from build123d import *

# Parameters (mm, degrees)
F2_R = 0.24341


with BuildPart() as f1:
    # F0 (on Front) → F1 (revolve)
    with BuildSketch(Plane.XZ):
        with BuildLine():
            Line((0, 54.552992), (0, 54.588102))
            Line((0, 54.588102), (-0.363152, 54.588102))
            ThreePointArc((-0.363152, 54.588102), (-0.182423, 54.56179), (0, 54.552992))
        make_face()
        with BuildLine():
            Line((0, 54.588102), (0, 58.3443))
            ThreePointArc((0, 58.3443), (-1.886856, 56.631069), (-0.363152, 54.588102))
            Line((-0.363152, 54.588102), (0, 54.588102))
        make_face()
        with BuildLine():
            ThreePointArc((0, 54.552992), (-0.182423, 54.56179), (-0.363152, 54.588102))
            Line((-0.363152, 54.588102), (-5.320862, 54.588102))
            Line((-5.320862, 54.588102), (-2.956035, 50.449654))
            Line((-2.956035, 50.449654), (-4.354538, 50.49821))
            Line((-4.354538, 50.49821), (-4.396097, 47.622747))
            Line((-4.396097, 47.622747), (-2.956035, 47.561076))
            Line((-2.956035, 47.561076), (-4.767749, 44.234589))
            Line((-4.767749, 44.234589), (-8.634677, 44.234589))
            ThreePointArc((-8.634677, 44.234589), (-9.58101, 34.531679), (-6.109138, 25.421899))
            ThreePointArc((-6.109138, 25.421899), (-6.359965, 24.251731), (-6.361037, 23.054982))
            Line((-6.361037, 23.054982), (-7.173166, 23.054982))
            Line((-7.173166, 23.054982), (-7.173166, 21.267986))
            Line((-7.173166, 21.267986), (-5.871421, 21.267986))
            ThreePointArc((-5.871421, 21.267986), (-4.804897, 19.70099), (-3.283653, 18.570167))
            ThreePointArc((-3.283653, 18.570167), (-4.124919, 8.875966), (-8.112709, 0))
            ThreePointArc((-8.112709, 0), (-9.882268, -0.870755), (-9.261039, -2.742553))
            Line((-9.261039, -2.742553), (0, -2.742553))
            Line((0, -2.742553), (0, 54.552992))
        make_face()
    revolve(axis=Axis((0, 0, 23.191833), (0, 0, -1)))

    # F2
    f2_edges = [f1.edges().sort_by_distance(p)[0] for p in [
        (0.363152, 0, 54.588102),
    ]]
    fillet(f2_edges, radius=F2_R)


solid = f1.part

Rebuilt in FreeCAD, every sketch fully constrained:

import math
import FreeCAD as App
import Part
import Sketcher

V = App.Vector
Q = App.Units.Quantity


def edges_at(feature, points):
    """Names of the edges that pass closest to the given points."""
    edges = feature.Shape.Edges
    near = lambda p: min(range(len(edges)), key=lambda i: edges[i].distToShape(Part.Vertex(*p))[0])
    return sorted({f"Edge{near(p) + 1}" for p in points})

doc = App.newDocument("Part")
body = doc.addObject("PartDesign::Body", "Body")

# Sketch on XZ plane
sketch1 = body.newObject("Sketcher::SketchObject", "Sketch")
sketch1.AttachmentSupport = (doc.getObject("XZ_Plane"), [""])
sketch1.MapMode = "FlatFace"
sketch1.addGeometry([
    Part.ArcOfCircle(Part.Circle(V(0, 56.448646, 0), V(0, 0, 1), 1.895654), math.radians(90), math.radians(258.955529)),  # 0
    Part.LineSegment(V(-0.363152, 54.588102, 0), V(-5.320862, 54.588102, 0)),  # 1
    Part.LineSegment(V(-5.320862, 54.588102, 0), V(-2.956035, 50.449654, 0)),  # 2
    Part.LineSegment(V(-2.956035, 50.449654, 0), V(-4.354538, 50.49821, 0)),  # 3
    Part.LineSegment(V(-4.354538, 50.49821, 0), V(-4.396097, 47.622747, 0)),  # 4
    Part.LineSegment(V(-4.396097, 47.622747, 0), V(-2.956035, 47.561076, 0)),  # 5
    Part.LineSegment(V(-2.956035, 47.561076, 0), V(-4.767749, 44.234589, 0)),  # 6
    Part.LineSegment(V(-4.767749, 44.234589, 0), V(-8.634677, 44.234589, 0)),  # 7
    Part.ArcOfCircle(Part.Circle(V(11.54962, 37.368394, 0), V(0, 0, 1), 21.32019), math.radians(161.212976), math.radians(214.079119)),  # 8
    Part.ArcOfCircle(Part.Circle(V(-0.689737, 23.648277, 0), V(0, 0, 1), 5.702249), math.radians(161.878141), math.radians(185.972191)),  # 9
    Part.LineSegment(V(-6.361037, 23.054982, 0), V(-7.173166, 23.054982, 0)),  # 10
    Part.LineSegment(V(-7.173166, 23.054982, 0), V(-7.173166, 21.267986, 0)),  # 11
    Part.LineSegment(V(-7.173166, 21.267986, 0), V(-5.871421, 21.267986, 0)),  # 12
    Part.ArcOfCircle(Part.Circle(V(-0.689738, 23.648282, 0), V(0, 0, 1), 5.702249), math.radians(-155.327495), math.radians(-117.058066)),  # 13
    Part.ArcOfCircle(Part.Circle(V(-32.310918, 16.20556, 0), V(0, 0, 1), 29.123418), math.radians(-33.810252), math.radians(4.657123)),  # 14
    Part.ArcOfCircle(Part.Circle(V(-8.498052, -1.450338, 0), V(0, 0, 1), 1.500656), math.radians(75.120722), math.radians(239.440336)),  # 15
    Part.LineSegment(V(-9.261039, -2.742553, 0), V(0, -2.742553, 0)),  # 16
    Part.LineSegment(V(0, -2.742553, 0), V(0, 58.3443, 0)),  # 17
], False)
sketch1.addConstraint([
    Sketcher.Constraint("Coincident", 0, 2, 1, 1),
    Sketcher.Constraint("Coincident", 1, 2, 2, 1),
    Sketcher.Constraint("Coincident", 2, 2, 3, 1),
    Sketcher.Constraint("Coincident", 3, 2, 4, 1),
    Sketcher.Constraint("Coincident", 4, 2, 5, 1),
    Sketcher.Constraint("Coincident", 5, 2, 6, 1),
    Sketcher.Constraint("Coincident", 6, 2, 7, 1),
    Sketcher.Constraint("Coincident", 7, 2, 8, 1),
    Sketcher.Constraint("Coincident", 8, 2, 9, 1),
    Sketcher.Constraint("Coincident", 9, 2, 10, 1),
    Sketcher.Constraint("Coincident", 10, 2, 11, 1),
    Sketcher.Constraint("Coincident", 11, 2, 12, 1),
    Sketcher.Constraint("Coincident", 12, 2, 13, 1),
    Sketcher.Constraint("Coincident", 13, 2, 14, 2),
    Sketcher.Constraint("Coincident", 14, 1, 15, 1),
    Sketcher.Constraint("Coincident", 15, 2, 16, 1),
    Sketcher.Constraint("Coincident", 16, 2, 17, 1),
    Sketcher.Constraint("Coincident", 17, 2, 0, 1),
    Sketcher.Constraint("Horizontal", 1),
    Sketcher.Constraint("Horizontal", 7),
    Sketcher.Constraint("Horizontal", 10),
    Sketcher.Constraint("Vertical", 11),
    Sketcher.Constraint("Horizontal", 12),
    Sketcher.Constraint("Horizontal", 16),
    Sketcher.Constraint("Vertical", 17),
    Sketcher.Constraint("Coincident", 13, 3, 9, 3),
    Sketcher.Constraint("PointOnObject", 0, 3, -2),
    Sketcher.Constraint("PointOnObject", 14, 1, -1),
    Sketcher.Constraint("PointOnObject", 16, 2, -2),
    Sketcher.Constraint("Radius", 8, Q("21.32019 mm")),
    Sketcher.Constraint("Radius", 9, Q("5.702249 mm")),
    Sketcher.Constraint("Radius", 13, Q("5.702249 mm")),
    Sketcher.Constraint("Radius", 0, Q("1.895654 mm")),
    Sketcher.Constraint("Radius", 14, Q("29.123418 mm")),
    Sketcher.Constraint("Radius", 15, Q("1.500656 mm")),
    Sketcher.Constraint("DistanceX", 1, 2, 1, 1, Q("4.95771 mm")),
    Sketcher.Constraint("DistanceX", 10, 2, 10, 1, Q("0.812129 mm")),
    Sketcher.Constraint("DistanceX", 16, 1, 16, 2, Q("9.261039 mm")),
    Sketcher.Constraint("DistanceY", -1, 1, 0, 2, Q("54.588102 mm")),
    Sketcher.Constraint("DistanceY", -1, 1, 8, 2, Q("25.421899 mm")),
    Sketcher.Constraint("DistanceY", -1, 1, 17, 2, Q("58.3443 mm")),
    Sketcher.Constraint("DistanceY", 4, 2, 0, 3, Q("8.825899 mm")),
    Sketcher.Constraint("DistanceX", 8, 2, 13, 3, Q("5.4194 mm")),
    Sketcher.Constraint("DistanceX", 9, 2, 8, 2, Q("0.251899 mm")),
    Sketcher.Constraint("Distance", 2, Q("4.766462 mm")),
    Sketcher.Constraint("Distance", 5, Q("1.441382 mm")),
    Sketcher.Constraint("DistanceX", 7, 2, 7, 1, Q("3.866928 mm")),
    Sketcher.Constraint("DistanceX", 12, 1, 12, 2, Q("1.301745 mm")),
    Sketcher.Constraint("DistanceY", 17, 1, 17, 2, Q("61.086853 mm")),
    Sketcher.Constraint("DistanceX", -1, 1, 8, 3, Q("11.54962 mm")),
    Sketcher.Constraint("DistanceX", 13, 3, -1, 1, Q("0.689738 mm")),
    Sketcher.Constraint("DistanceY", -1, 1, 14, 3, Q("16.20556 mm")),
    Sketcher.Constraint("DistanceY", -1, 1, 3, 2, Q("50.49821 mm")),
    Sketcher.Constraint("DistanceX", 6, 2, -1, 1, Q("4.767749 mm")),
    Sketcher.Constraint("DistanceX", 14, 1, -1, 1, Q("8.112709 mm")),
    Sketcher.Constraint("DistanceY", 8, 3, 2, 2, Q("13.08126 mm")),
    Sketcher.Constraint("DistanceX", 3, 2, 0, 3, Q("4.354538 mm")),
    Sketcher.Constraint("DistanceX", 4, 2, 3, 2, Q("0.041559 mm")),
    Sketcher.Constraint("DistanceY", 5, 2, 4, 2, Q("0.061671 mm")),
])
revolution = body.newObject("PartDesign::Revolution", "Revolution")
revolution.Profile = sketch1
revolution.ReferenceAxis = (sketch1, ["V_Axis"])
revolution.Angle = 360
doc.recompute()

fillet = body.newObject("PartDesign::Fillet", "Fillet")
fillet.Base = (revolution, edges_at(revolution, [(0.363, 0, 54.588)]))
fillet.Radius = 0.24341

doc.recompute()
